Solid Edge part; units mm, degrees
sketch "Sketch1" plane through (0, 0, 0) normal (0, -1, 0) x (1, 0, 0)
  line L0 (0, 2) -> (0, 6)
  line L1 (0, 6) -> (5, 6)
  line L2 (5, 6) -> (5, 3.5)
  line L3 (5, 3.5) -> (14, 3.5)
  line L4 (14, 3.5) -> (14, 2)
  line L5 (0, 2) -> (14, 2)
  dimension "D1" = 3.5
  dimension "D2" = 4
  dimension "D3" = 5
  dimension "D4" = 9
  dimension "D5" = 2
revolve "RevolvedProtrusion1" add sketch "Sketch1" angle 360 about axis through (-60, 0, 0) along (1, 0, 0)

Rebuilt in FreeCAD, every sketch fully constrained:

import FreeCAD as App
import Part
import Sketcher
from FreeCAD import Vector
Q = App.Units.Quantity


def add_polygon(sketch, points):
    """Adds a closed chain of lines whose ends are joined by coincident constraints."""
    first, n = sketch.GeometryCount, len(points)
    for a, b in zip(points, points[1:] + points[:1]):
        sketch.addGeometry(Part.LineSegment(App.Vector(*a, 0), App.Vector(*b, 0)), False)
    for i in range(n):
        sketch.addConstraint(Sketcher.Constraint("Coincident", first + i, 2, first + (i + 1) % n, 1))

doc = App.newDocument("Part")
body = doc.addObject("PartDesign::Body", "Body")

# Sketch on XZ plane
sketch1 = body.newObject("Sketcher::SketchObject", "Sketch")
sketch1.AttachmentSupport = (doc.getObject("XZ_Plane"), [""])
sketch1.MapMode = "FlatFace"
add_polygon(sketch1, [(0, 6), (0, 2), (14, 2), (14, 3.5), (5, 3.5), (5, 6)])  # lines 0-5
sketch1.addConstraint([
    Sketcher.Constraint("Vertical", 0),
    Sketcher.Constraint("Horizontal", 1),
    Sketcher.Constraint("Vertical", 2),
    Sketcher.Constraint("Horizontal", 3),
    Sketcher.Constraint("Vertical", 4),
    Sketcher.Constraint("Horizontal", 5),
    Sketcher.Constraint("PointOnObject", 0, 2, -2),
    Sketcher.Constraint("DistanceX", 5, 2, 5, 1, Q("5 mm")),
    Sketcher.Constraint("DistanceX", 1, 1, 1, 2, Q("14 mm")),
    Sketcher.Constraint("DistanceY", 0, 2, 0, 1, Q("4 mm")),
    Sketcher.Constraint("DistanceY", 2, 1, 2, 2, Q("1.5 mm")),
    Sketcher.Constraint("DistanceY", -1, 1, 0, 2, Q("2 mm")),
])
revolution = body.newObject("PartDesign::Revolution", "Revolution")
revolution.Profile = sketch1
revolution.ReferenceAxis = (sketch1, ["H_Axis"])
revolution.Angle = 360

doc.recompute()
